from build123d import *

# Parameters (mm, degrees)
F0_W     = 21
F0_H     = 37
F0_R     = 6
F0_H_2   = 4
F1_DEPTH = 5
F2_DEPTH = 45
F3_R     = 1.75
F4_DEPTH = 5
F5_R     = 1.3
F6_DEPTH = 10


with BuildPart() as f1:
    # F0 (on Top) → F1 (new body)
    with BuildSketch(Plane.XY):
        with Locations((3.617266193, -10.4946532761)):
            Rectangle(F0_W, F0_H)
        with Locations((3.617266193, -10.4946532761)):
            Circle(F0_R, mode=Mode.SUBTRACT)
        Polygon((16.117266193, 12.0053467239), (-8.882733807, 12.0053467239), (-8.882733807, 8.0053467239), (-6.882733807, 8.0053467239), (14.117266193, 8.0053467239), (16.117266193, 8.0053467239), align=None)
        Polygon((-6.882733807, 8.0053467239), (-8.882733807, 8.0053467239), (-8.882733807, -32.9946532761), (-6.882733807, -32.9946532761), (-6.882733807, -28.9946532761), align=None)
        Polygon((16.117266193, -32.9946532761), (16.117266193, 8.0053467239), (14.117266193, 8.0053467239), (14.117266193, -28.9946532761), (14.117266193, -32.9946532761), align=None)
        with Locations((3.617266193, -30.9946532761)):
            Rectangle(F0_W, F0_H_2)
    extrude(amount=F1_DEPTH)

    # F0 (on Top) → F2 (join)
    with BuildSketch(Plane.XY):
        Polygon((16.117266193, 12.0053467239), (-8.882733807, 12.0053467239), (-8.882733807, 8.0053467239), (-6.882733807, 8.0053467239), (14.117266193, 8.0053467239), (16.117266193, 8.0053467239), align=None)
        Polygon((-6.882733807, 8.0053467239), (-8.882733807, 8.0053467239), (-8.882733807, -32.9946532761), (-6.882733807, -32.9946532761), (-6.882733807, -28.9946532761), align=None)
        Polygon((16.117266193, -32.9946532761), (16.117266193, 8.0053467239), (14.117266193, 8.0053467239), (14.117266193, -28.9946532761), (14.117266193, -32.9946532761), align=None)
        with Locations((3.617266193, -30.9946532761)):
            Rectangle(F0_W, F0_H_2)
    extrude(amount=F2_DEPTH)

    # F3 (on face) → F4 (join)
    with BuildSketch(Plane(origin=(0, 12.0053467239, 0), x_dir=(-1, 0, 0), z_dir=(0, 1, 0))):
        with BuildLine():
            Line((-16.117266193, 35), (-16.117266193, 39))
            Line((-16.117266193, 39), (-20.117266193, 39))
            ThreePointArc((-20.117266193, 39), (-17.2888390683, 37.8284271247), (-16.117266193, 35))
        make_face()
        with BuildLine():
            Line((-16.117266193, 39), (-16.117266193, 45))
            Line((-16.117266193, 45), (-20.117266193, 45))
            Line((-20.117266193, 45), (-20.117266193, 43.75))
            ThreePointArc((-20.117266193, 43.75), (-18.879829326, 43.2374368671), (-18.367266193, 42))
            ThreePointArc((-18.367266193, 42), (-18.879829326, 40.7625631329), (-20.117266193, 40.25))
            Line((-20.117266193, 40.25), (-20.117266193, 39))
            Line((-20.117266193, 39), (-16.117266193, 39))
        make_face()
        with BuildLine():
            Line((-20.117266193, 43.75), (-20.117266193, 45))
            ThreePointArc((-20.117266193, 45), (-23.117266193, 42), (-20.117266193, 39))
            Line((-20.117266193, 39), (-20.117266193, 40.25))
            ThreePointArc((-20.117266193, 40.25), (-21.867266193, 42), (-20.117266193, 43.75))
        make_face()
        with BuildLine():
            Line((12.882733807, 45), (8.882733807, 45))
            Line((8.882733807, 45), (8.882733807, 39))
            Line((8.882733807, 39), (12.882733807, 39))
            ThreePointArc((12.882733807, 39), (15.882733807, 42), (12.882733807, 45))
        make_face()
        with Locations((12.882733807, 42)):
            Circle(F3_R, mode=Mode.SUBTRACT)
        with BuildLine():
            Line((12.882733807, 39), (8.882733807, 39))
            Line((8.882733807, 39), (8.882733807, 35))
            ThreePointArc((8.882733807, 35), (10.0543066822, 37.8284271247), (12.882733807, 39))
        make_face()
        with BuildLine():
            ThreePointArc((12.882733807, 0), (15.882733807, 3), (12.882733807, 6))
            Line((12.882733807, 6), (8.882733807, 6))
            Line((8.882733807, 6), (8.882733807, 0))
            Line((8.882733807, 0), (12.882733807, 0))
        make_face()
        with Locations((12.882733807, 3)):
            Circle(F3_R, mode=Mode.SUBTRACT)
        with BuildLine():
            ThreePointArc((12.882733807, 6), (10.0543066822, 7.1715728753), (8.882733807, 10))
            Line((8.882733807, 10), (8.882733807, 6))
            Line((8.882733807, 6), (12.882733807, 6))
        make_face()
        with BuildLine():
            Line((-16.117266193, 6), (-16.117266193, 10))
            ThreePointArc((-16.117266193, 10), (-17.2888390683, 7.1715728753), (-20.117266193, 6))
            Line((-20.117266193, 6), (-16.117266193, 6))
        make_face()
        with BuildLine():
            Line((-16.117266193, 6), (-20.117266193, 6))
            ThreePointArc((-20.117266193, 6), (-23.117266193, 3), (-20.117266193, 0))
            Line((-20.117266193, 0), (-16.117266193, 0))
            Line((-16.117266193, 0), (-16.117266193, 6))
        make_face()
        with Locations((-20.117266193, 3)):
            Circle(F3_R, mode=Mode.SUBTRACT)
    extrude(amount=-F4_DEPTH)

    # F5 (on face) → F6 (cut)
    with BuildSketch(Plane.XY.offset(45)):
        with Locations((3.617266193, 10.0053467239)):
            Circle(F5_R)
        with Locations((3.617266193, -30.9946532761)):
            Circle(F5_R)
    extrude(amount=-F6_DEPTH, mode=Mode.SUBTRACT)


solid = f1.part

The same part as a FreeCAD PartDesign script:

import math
import FreeCAD as App
import Part
import Sketcher

V = App.Vector


def add_polygon(sketch, points):
    """Adds a closed chain of lines whose ends are joined by coincident constraints."""
    first, n = sketch.GeometryCount, len(points)
    for a, b in zip(points, points[1:] + points[:1]):
        sketch.addGeometry(Part.LineSegment(App.Vector(*a, 0), App.Vector(*b, 0)), False)
    for i in range(n):
        sketch.addConstraint(Sketcher.Constraint("Coincident", first + i, 2, first + (i + 1) % n, 1))

doc = App.newDocument("Part")
body = doc.addObject("PartDesign::Body", "Body")

# Sketch on XY plane
sketch1 = doc.addObject("Sketcher::SketchObject", "Sketch")
body.addObject(sketch1)
sketch1.AttachmentSupport = (doc.XY_Plane, [""])
sketch1.MapMode = "FlatFace"
add_polygon(sketch1, [(16, -33), (16, 12), (-9, 12), (-9, -33)])  # lines 0-3
sketch1.addGeometry(Part.Circle(V(4, -10, 0), V(0, 0, 1), 6), False)  # 4
sketch1.addConstraint(Sketcher.Constraint("Vertical", 0))
sketch1.addConstraint(Sketcher.Constraint("Horizontal", 1))
sketch1.addConstraint(Sketcher.Constraint("Vertical", 2))
sketch1.addConstraint(Sketcher.Constraint("Horizontal", 3))
sketch1.addConstraint(Sketcher.Constraint("Diameter", 4, 12.0))
sketch1.addConstraint(Sketcher.Constraint("DistanceX", 1, 2, 1, 1, 25.0))
sketch1.addConstraint(Sketcher.Constraint("DistanceY", 0, 1, 0, 2, 45.0))
sketch1.addConstraint(Sketcher.Constraint("DistanceX", 4, 3, 0, 2, 12.5))
sketch1.addConstraint(Sketcher.Constraint("DistanceY", 4, 3, 0, 2, 22.5))
sketch1.addConstraint(Sketcher.Constraint("DistanceX", -1, 1, 4, 3, 3.617266))
sketch1.addConstraint(Sketcher.Constraint("DistanceY", 4, 3, -1, 1, 10.494653))
pad1 = doc.addObject("PartDesign::Pad", "Pad")
body.addObject(pad1)
pad1.Profile = sketch1
pad1.Length = 5

# Sketch on XY plane
sketch2 = doc.addObject("Sketcher::SketchObject", "Sketch001")
body.addObject(sketch2)
sketch2.AttachmentSupport = (doc.XY_Plane, [""])
sketch2.MapMode = "FlatFace"
add_polygon(sketch2, [(16, 12), (-9, 12), (-9, -33), (16, -33)])  # lines 0-3
add_polygon(sketch2, [(-7, -29), (-7, 8), (14, 8), (14, -29)])  # lines 4-7
sketch2.addConstraint(Sketcher.Constraint("Horizontal", 0))
sketch2.addConstraint(Sketcher.Constraint("Vertical", 1))
sketch2.addConstraint(Sketcher.Constraint("Horizontal", 2))
sketch2.addConstraint(Sketcher.Constraint("Vertical", 3))
sketch2.addConstraint(Sketcher.Constraint("Vertical", 4))
sketch2.addConstraint(Sketcher.Constraint("Horizontal", 5))
sketch2.addConstraint(Sketcher.Constraint("Vertical", 6))
sketch2.addConstraint(Sketcher.Constraint("Horizontal", 7))
sketch2.addConstraint(Sketcher.Constraint("DistanceX", 0, 2, 0, 1, 25.0))
sketch2.addConstraint(Sketcher.Constraint("DistanceX", 5, 1, 5, 2, 21.0))
sketch2.addConstraint(Sketcher.Constraint("DistanceY", 1, 2, 1, 1, 45.0))
sketch2.addConstraint(Sketcher.Constraint("DistanceY", 4, 1, 4, 2, 37.0))
sketch2.addConstraint(Sketcher.Constraint("DistanceX", 0, 2, 4, 2, 2.0))
sketch2.addConstraint(Sketcher.Constraint("DistanceY", 4, 2, 0, 2, 4.0))
sketch2.addConstraint(Sketcher.Constraint("DistanceX", 0, 2, -1, 1, 8.882734))
sketch2.addConstraint(Sketcher.Constraint("DistanceY", -1, 1, 0, 2, 12.005347))
pad2 = doc.addObject("PartDesign::Pad", "Pad001")
body.addObject(pad2)
pad2.Profile = sketch2
pad2.Length = 45

# Sketch on XZ plane
sketch3 = doc.addObject("Sketcher::SketchObject", "Sketch002")
body.addObject(sketch3)
sketch3.AttachmentSupport = (doc.XZ_Plane, [""])
sketch3.MapMode = "FlatFace"
sketch3.AttachmentOffset = App.Placement(V(0, 0, -12.005347), App.Rotation())
sketch3.addGeometry(Part.LineSegment(V(16.1, 35, 0), V(16.1, 45, 0)), False)
sketch3.addGeometry(Part.LineSegment(V(16.1, 45, 0), V(20.1, 45, 0)), False)
sketch3.addGeometry(Part.ArcOfCircle(Part.Circle(V(20.1, 42, 0), V(0, 0, 1), 3), math.radians(-90), math.radians(90)), False)
sketch3.addGeometry(Part.ArcOfCircle(Part.Circle(V(20.1, 35, 0), V(0, 0, 1), 4), math.radians(90), math.radians(180)), False)
sketch3.addGeometry(Part.ArcOfCircle(Part.Circle(V(20.1, 42, 0), V(0, 0, 1), 1.8), math.radians(90), math.radians(180)), False)
sketch3.addGeometry(Part.ArcOfCircle(Part.Circle(V(20.1, 42, 0), V(0, 0, 1), 1.8), math.radians(180), math.radians(270)), False)
sketch3.addGeometry(Part.ArcOfCircle(Part.Circle(V(20.1, 42, 0), V(0, 0, 1), 1.8), math.radians(-90), math.radians(90)), False)
sketch3.addGeometry(Part.LineSegment(V(-12.9, 45, 0), V(-8.9, 45, 0)), False)
sketch3.addGeometry(Part.LineSegment(V(-8.9, 45, 0), V(-8.9, 35, 0)), False)
sketch3.addGeometry(Part.ArcOfCircle(Part.Circle(V(-12.9, 35, 0), V(0, 0, 1), 4), math.radians(0), math.radians(90)), False)
sketch3.addGeometry(Part.ArcOfCircle(Part.Circle(V(-12.9, 42, 0), V(0, 0, 1), 3), math.radians(90), math.radians(270)), False)
sketch3.addGeometry(Part.Circle(V(-12.9, 42, 0), V(0, 0, 1), 1.8), False)
sketch3.addGeometry(Part.ArcOfCircle(Part.Circle(V(-12.9, 3, 0), V(0, 0, 1), 3), math.radians(90), math.radians(270)), False)
sketch3.addGeometry(Part.ArcOfCircle(Part.Circle(V(-12.9, 10, 0), V(0, 0, 1), 4), math.radians(-90), math.radians(0)), False)
sketch3.addGeometry(Part.LineSegment(V(-8.9, 10, 0), V(-8.9, 0, 0)), False)
sketch3.addGeometry(Part.LineSegment(V(-8.9, 0, 0), V(-12.9, 0, 0)), False)
sketch3.addGeometry(Part.Circle(V(-12.9, 3, 0), V(0, 0, 1), 1.8), False)
sketch3.addGeometry(Part.ArcOfCircle(Part.Circle(V(20.1, 10, 0), V(0, 0, 1), 4), math.radians(180), math.radians(270)), False)
sketch3.addGeometry(Part.ArcOfCircle(Part.Circle(V(20.1, 3, 0), V(0, 0, 1), 3), math.radians(-90), math.radians(90)), False)
sketch3.addGeometry(Part.LineSegment(V(20.1, 0, 0), V(16.1, 0, 0)), False)
sketch3.addGeometry(Part.LineSegment(V(16.1, 0, 0), V(16.1, 10, 0)), False)
sketch3.addGeometry(Part.Circle(V(20.1, 3, 0), V(0, 0, 1), 1.8), False)
sketch3.addConstraint(Sketcher.Constraint("Coincident", 0, 2, 1, 1))
sketch3.addConstraint(Sketcher.Constraint("Tangent", 1, 2, 2, 2))
sketch3.addConstraint(Sketcher.Constraint("Tangent", 2, 1, 3, 1))
sketch3.addConstraint(Sketcher.Constraint("Tangent", 3, 2, 0, 1))
sketch3.addConstraint(Sketcher.Constraint("Tangent", 4, 2, 5, 1))
sketch3.addConstraint(Sketcher.Constraint("Tangent", 5, 2, 6, 1))
sketch3.addConstraint(Sketcher.Constraint("Tangent", 6, 2, 4, 1))
sketch3.addConstraint(Sketcher.Constraint("Coincident", 7, 2, 8, 1))
sketch3.addConstraint(Sketcher.Constraint("Tangent", 8, 2, 9, 1))
sketch3.addConstraint(Sketcher.Constraint("Tangent", 9, 2, 10, 2))
sketch3.addConstraint(Sketcher.Constraint("Tangent", 10, 1, 7, 1))
sketch3.addConstraint(Sketcher.Constraint("Tangent", 12, 1, 13, 1))
sketch3.addConstraint(Sketcher.Constraint("Tangent", 13, 2, 14, 1))
sketch3.addConstraint(Sketcher.Constraint("Coincident", 14, 2, 15, 1))
sketch3.addConstraint(Sketcher.Constraint("Tangent", 15, 2, 12, 2))
sketch3.addConstraint(Sketcher.Constraint("Tangent", 17, 2, 18, 2))
sketch3.addConstraint(Sketcher.Constraint("Tangent", 18, 1, 19, 1))
sketch3.addConstraint(Sketcher.Constraint("Coincident", 19, 2, 20, 1))
sketch3.addConstraint(Sketcher.Constraint("Tangent", 20, 2, 17, 1))
sketch3.addConstraint(Sketcher.Constraint("Vertical", 0))
sketch3.addConstraint(Sketcher.Constraint("Horizontal", 1))
sketch3.addConstraint(Sketcher.Constraint("Horizontal", 7))
sketch3.addConstraint(Sketcher.Constraint("Vertical", 8))
sketch3.addConstraint(Sketcher.Constraint("Vertical", 14))
sketch3.addConstraint(Sketcher.Constraint("Horizontal", 15))
sketch3.addConstraint(Sketcher.Constraint("Horizontal", 19))
sketch3.addConstraint(Sketcher.Constraint("Vertical", 20))
sketch3.addConstraint(Sketcher.Constraint("Coincident", 4, 3, 2, 3))
sketch3.addConstraint(Sketcher.Constraint("Coincident", 11, 3, 10, 3))
sketch3.addConstraint(Sketcher.Constraint("Coincident", 16, 3, 12, 3))
sketch3.addConstraint(Sketcher.Constraint("Coincident", 21, 3, 18, 3))
sketch3.addConstraint(Sketcher.Constraint("Equal", 3, 9))
sketch3.addConstraint(Sketcher.Constraint("Equal", 2, 10))
sketch3.addConstraint(Sketcher.Constraint("Equal", 6, 11))
sketch3.addConstraint(Sketcher.Constraint("Equal", 10, 12))
sketch3.addConstraint(Sketcher.Constraint("Equal", 9, 13))
sketch3.addConstraint(Sketcher.Constraint("Equal", 11, 16))
sketch3.addConstraint(Sketcher.Constraint("Equal", 13, 17))
sketch3.addConstraint(Sketcher.Constraint("Equal", 12, 18))
sketch3.addConstraint(Sketcher.Constraint("Equal", 16, 21))
sketch3.addConstraint(Sketcher.Constraint("PointOnObject", 14, 2, -1))
sketch3.addConstraint(Sketcher.Constraint("PointOnObject", 18, 1, -1))
sketch3.addConstraint(Sketcher.Constraint("Horizontal", 3, 3, 9, 3))
sketch3.addConstraint(Sketcher.Constraint("Horizontal", 11, 3, 4, 2))
sketch3.addConstraint(Sketcher.Constraint("Vertical", 2, 3, 3, 3))
sketch3.addConstraint(Sketcher.Constraint("Vertical", 9, 3, 10, 3))
sketch3.addConstraint(Sketcher.Constraint("Vertical", 11, 3, 12, 3))
sketch3.addConstraint(Sketcher.Constraint("Vertical", 12, 3, 13, 3))
sketch3.addConstraint(Sketcher.Constraint("Vertical", 6, 3, 17, 3))
sketch3.addConstraint(Sketcher.Constraint("Vertical", 17, 3, 18, 3))
sketch3.addConstraint(Sketcher.Constraint("Vertical", 2, 1, 5, 2))
sketch3.addConstraint(Sketcher.Constraint("Vertical", 5, 2, 6, 2))
sketch3.addConstraint(Sketcher.Constraint("Radius", 2, 3.0))
sketch3.addConstraint(Sketcher.Constraint("Radius", 3, 4.0))
sketch3.addConstraint(Sketcher.Constraint("Diameter", 11, 3.5))
sketch3.addConstraint(Sketcher.Constraint("DistanceY", -1, 1, 2, 3, 42.0))
sketch3.addConstraint(Sketcher.Constraint("DistanceX", 9, 3, 3, 3, 33.0))
sketch3.addConstraint(Sketcher.Constraint("DistanceX", -1, 1, 2, 3, 20.117266))
pad3 = doc.addObject("PartDesign::Pad", "Pad002")
body.addObject(pad3)
pad3.Profile = sketch3
pad3.Length = 5

# Sketch on XY plane
sketch4 = doc.addObject("Sketcher::SketchObject", "Sketch003")
body.addObject(sketch4)
sketch4.AttachmentSupport = (doc.XY_Plane, [""])
sketch4.MapMode = "FlatFace"
sketch4.AttachmentOffset = App.Placement(V(0, 0, 45), App.Rotation())
sketch4.addGeometry(Part.Circle(V(3.6, 10, 0), V(0, 0, 1), 1.3), False)
sketch4.addGeometry(Part.Circle(V(3.6, -31, 0), V(0, 0, 1), 1.3), False)
sketch4.addConstraint(Sketcher.Constraint("Equal", 0, 1))
sketch4.addConstraint(Sketcher.Constraint("Vertical", 0, 3, 1, 3))
sketch4.addConstraint(Sketcher.Constraint("Diameter", 0, 2.6))
sketch4.addConstraint(Sketcher.Constraint("DistanceY", 1, 3, 0, 3, 41.0))
sketch4.addConstraint(Sketcher.Constraint("DistanceX", -1, 1, 0, 3, 3.617266))
sketch4.addConstraint(Sketcher.Constraint("DistanceY", -1, 1, 0, 3, 10.005347))
pocket1 = doc.addObject("PartDesign::Pocket", "Pocket")
body.addObject(pocket1)
pocket1.Profile = sketch4
pocket1.Length = 10

doc.recompute()
